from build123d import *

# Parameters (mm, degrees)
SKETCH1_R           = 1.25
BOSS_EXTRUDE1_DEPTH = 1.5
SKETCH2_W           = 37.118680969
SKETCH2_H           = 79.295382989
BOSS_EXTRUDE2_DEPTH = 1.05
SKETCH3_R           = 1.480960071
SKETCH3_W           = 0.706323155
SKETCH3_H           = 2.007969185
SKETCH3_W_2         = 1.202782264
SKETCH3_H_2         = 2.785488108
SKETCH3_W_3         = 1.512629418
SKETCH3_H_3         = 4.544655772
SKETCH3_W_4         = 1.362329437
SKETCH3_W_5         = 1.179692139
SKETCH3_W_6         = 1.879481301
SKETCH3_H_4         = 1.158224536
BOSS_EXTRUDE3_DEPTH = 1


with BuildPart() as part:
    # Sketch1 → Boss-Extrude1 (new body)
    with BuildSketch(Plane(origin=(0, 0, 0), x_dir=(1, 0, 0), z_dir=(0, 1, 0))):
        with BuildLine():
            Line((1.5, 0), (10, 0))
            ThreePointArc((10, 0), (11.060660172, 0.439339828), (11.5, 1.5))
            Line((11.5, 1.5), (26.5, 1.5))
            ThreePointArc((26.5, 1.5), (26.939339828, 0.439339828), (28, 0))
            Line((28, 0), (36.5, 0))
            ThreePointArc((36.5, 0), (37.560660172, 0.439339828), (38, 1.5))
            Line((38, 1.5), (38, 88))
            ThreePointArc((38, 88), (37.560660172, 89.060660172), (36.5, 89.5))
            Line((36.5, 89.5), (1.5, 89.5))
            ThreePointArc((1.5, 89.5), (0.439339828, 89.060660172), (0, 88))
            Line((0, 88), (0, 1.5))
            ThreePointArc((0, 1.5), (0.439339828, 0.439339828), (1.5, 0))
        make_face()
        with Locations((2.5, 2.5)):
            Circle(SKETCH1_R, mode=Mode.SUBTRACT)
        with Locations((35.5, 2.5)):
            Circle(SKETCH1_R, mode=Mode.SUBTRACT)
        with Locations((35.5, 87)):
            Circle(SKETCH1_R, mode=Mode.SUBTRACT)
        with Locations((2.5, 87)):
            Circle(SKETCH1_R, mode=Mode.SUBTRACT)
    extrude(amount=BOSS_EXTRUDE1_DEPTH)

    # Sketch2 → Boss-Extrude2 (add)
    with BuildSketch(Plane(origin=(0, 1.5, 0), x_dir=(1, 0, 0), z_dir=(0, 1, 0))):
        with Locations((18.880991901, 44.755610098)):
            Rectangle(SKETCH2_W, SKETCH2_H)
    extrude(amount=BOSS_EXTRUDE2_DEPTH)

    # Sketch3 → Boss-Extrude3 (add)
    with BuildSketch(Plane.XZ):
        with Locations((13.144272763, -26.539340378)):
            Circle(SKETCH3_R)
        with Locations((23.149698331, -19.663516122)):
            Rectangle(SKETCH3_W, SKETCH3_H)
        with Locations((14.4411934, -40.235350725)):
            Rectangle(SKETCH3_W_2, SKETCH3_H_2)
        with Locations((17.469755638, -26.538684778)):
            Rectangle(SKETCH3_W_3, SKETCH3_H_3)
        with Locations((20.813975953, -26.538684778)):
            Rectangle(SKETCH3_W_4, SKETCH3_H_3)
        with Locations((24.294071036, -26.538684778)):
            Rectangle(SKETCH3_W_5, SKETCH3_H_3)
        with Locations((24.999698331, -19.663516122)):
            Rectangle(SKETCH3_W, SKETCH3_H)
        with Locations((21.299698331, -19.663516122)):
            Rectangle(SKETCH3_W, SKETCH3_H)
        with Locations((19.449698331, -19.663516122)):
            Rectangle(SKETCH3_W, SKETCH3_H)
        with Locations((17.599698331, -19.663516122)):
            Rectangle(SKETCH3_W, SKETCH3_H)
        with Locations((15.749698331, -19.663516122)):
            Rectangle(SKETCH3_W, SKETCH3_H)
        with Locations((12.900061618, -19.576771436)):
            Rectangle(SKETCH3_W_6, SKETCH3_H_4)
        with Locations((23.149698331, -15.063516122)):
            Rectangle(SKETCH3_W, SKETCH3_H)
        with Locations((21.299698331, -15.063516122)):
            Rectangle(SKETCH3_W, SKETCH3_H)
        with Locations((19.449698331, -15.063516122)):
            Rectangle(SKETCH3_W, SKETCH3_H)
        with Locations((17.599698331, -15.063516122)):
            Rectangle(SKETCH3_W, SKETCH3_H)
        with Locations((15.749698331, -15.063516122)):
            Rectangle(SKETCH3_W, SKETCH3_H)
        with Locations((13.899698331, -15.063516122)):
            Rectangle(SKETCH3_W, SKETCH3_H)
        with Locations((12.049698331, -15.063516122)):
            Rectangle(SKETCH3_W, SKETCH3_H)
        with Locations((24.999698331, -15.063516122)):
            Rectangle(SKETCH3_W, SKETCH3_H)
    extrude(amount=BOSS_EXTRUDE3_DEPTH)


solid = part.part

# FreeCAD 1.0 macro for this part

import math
import FreeCAD as App
import Part
import Sketcher

V = App.Vector


def add_polygon(sketch, points):
    """Adds a closed chain of lines whose ends are joined by coincident constraints."""
    first, n = sketch.GeometryCount, len(points)
    for a, b in zip(points, points[1:] + points[:1]):
        sketch.addGeometry(Part.LineSegment(App.Vector(*a, 0), App.Vector(*b, 0)), False)
    for i in range(n):
        sketch.addConstraint(Sketcher.Constraint("Coincident", first + i, 2, first + (i + 1) % n, 1))

doc = App.newDocument("Part")
body = doc.addObject("PartDesign::Body", "Body")

sketch1 = body.newObject("Sketcher::SketchObject", "Sketch")
sketch1.AttachmentSupport = (doc.getObject("XZ_Plane"), [""])
sketch1.MapMode = "FlatFace"
sketch1.addGeometry([
    Part.LineSegment(V(1.5, 0, 0), V(10, 0, 0)),
    Part.ArcOfCircle(Part.Circle(V(10, -1.5, 0), V(0, 0, 1), 1.5), math.radians(0), math.radians(90)),
    Part.LineSegment(V(11.5, -1.5, 0), V(26.5, -1.5, 0)),
    Part.ArcOfCircle(Part.Circle(V(28, -1.5, 0), V(0, 0, 1), 1.5), math.radians(90), math.radians(180)),
    Part.LineSegment(V(28, 0, 0), V(36.5, 0, 0)),
    Part.ArcOfCircle(Part.Circle(V(36.5, -1.5, 0), V(0, 0, 1), 1.5), math.radians(0), math.radians(90)),
    Part.LineSegment(V(38, -1.5, 0), V(38, -88, 0)),
    Part.ArcOfCircle(Part.Circle(V(36.5, -88, 0), V(0, 0, 1), 1.5), math.radians(-90), math.radians(0)),
    Part.LineSegment(V(36.5, -89.5, 0), V(1.5, -89.5, 0)),
    Part.ArcOfCircle(Part.Circle(V(1.5, -88, 0), V(0, 0, 1), 1.5), math.radians(180), math.radians(270)),
    Part.LineSegment(V(0, -88, 0), V(0, -1.5, 0)),
    Part.ArcOfCircle(Part.Circle(V(1.5, -1.5, 0), V(0, 0, 1), 1.5), math.radians(90), math.radians(180)),
    Part.Circle(V(2.5, -2.5, 0), V(0, 0, 1), 1.25),
    Part.Circle(V(35.5, -2.5, 0), V(0, 0, 1), 1.25),
    Part.Circle(V(2.5, -87, 0), V(0, 0, 1), 1.25),
    Part.Circle(V(35.5, -87, 0), V(0, 0, 1), 1.25),
], False)
sketch1.addConstraint([
    Sketcher.Constraint("Tangent", 0, 2, 1, 2),
    Sketcher.Constraint("Coincident", 1, 1, 2, 1),
    Sketcher.Constraint("Coincident", 2, 2, 3, 2),
    Sketcher.Constraint("Tangent", 3, 1, 4, 1),
    Sketcher.Constraint("Tangent", 4, 2, 5, 2),
    Sketcher.Constraint("Tangent", 5, 1, 6, 1),
    Sketcher.Constraint("Tangent", 6, 2, 7, 2),
    Sketcher.Constraint("Tangent", 7, 1, 8, 1),
    Sketcher.Constraint("Tangent", 8, 2, 9, 2),
    Sketcher.Constraint("Tangent", 9, 1, 10, 1),
    Sketcher.Constraint("Tangent", 10, 2, 11, 2),
    Sketcher.Constraint("Tangent", 11, 1, 0, 1),
    Sketcher.Constraint("Horizontal", 0),
    Sketcher.Constraint("Horizontal", 2),
    Sketcher.Constraint("Horizontal", 4),
    Sketcher.Constraint("Vertical", 6),
    Sketcher.Constraint("Horizontal", 8),
    Sketcher.Constraint("Vertical", 10),
    Sketcher.Constraint("Equal", 1, 3),
    Sketcher.Constraint("Equal", 3, 5),
    Sketcher.Constraint("Equal", 5, 7),
    Sketcher.Constraint("Equal", 7, 9),
    Sketcher.Constraint("Equal", 9, 11),
    Sketcher.Constraint("Equal", 12, 13),
    Sketcher.Constraint("Equal", 13, 14),
    Sketcher.Constraint("Equal", 14, 15),
    Sketcher.Constraint("PointOnObject", 0, 2, -1),
    Sketcher.Constraint("PointOnObject", 3, 1, -1),
    Sketcher.Constraint("PointOnObject", 9, 1, -2),
    Sketcher.Constraint("Horizontal", 12, 3, 13, 3),
    Sketcher.Constraint("Horizontal", 14, 3, 15, 3),
    Sketcher.Constraint("Horizontal", 11, 3, 1, 1),
    Sketcher.Constraint("Vertical", 12, 3, 14, 3),
    Sketcher.Constraint("Vertical", 13, 3, 15, 3),
    Sketcher.Constraint("Equal", 0, 4),
    Sketcher.Constraint("Diameter", 12, 2.5),
    Sketcher.Constraint("Radius", 1, 1.5),
    Sketcher.Constraint("DistanceX", 2, 1, 2, 2, 15.0),
    Sketcher.Constraint("DistanceX", 8, 2, 8, 1, 35.0),
    Sketcher.Constraint("DistanceY", 6, 2, 6, 1, 86.5),
    Sketcher.Constraint("DistanceY", 14, 3, -1, 1, 87.0),
    Sketcher.Constraint("DistanceX", 11, 3, 12, 3, 1.0),
    Sketcher.Constraint("DistanceY", 12, 3, 11, 3, 1.0),
    Sketcher.Constraint("DistanceX", 13, 3, 5, 3, 1.0),
])
pad1 = body.newObject("PartDesign::Pad", "Pad")
pad1.Profile = sketch1
pad1.Length = 1.5
pad1.Reversed = True

sketch2 = body.newObject("Sketcher::SketchObject", "Sketch001")
sketch2.AttachmentSupport = (doc.getObject("XZ_Plane"), [""])
sketch2.MapMode = "FlatFace"
sketch2.AttachmentOffset = App.Placement(V(0, 0, -1.5), App.Rotation())
add_polygon(sketch2, [(0.321651, -84.403302), (0.321651, -5.107919), (37.440332, -5.107919), (37.440332, -84.403302)])
sketch2.addConstraint([
    Sketcher.Constraint("Vertical", 0),
    Sketcher.Constraint("Horizontal", 1),
    Sketcher.Constraint("Vertical", 2),
    Sketcher.Constraint("Horizontal", 3),
    Sketcher.Constraint("DistanceX", 1, 1, 1, 2, 37.118681),
    Sketcher.Constraint("DistanceY", 2, 2, -1, 1, 84.403302),
    Sketcher.Constraint("DistanceY", 0, 1, 0, 2, 79.295383),
    Sketcher.Constraint("DistanceX", -1, 1, 0, 2, 0.321651),
])
pad2 = body.newObject("PartDesign::Pad", "Pad001")
pad2.Profile = sketch2
pad2.Length = 1.05
pad2.Reversed = True

sketch3 = body.newObject("Sketcher::SketchObject", "Sketch002")
sketch3.AttachmentSupport = (doc.getObject("XZ_Plane"), [""])
sketch3.MapMode = "FlatFace"
sketch3.addGeometry(Part.Circle(V(13.144273, -26.53934, 0), V(0, 0, 1), 1.48096), False)
add_polygon(sketch3, [(22.796537, -18.659532), (22.796537, -20.667501), (23.50286, -20.667501), (23.50286, -18.659532)])
add_polygon(sketch3, [(13.839802, -38.842607), (13.839802, -41.628095), (15.042585, -41.628095), (15.042585, -38.842607)])
add_polygon(sketch3, [(16.713441, -24.266357), (16.713441, -28.811013), (18.22607, -28.811013), (18.22607, -24.266357)])
add_polygon(sketch3, [(20.132811, -24.266357), (20.132811, -28.811013), (21.495141, -28.811013), (21.495141, -24.266357)])
add_polygon(sketch3, [(23.704225, -24.266357), (23.704225, -28.811013), (24.883917, -28.811013), (24.883917, -24.266357)])
add_polygon(sketch3, [(24.646537, -18.659532), (24.646537, -20.667501), (25.35286, -20.667501), (25.35286, -18.659532)])
add_polygon(sketch3, [(20.946537, -18.659532), (20.946537, -20.667501), (21.65286, -20.667501), (21.65286, -18.659532)])
add_polygon(sketch3, [(19.096537, -18.659532), (19.096537, -20.667501), (19.80286, -20.667501), (19.80286, -18.659532)])
add_polygon(sketch3, [(17.246537, -18.659532), (17.246537, -20.667501), (17.95286, -20.667501), (17.95286, -18.659532)])
add_polygon(sketch3, [(15.396537, -18.659532), (15.396537, -20.667501), (16.10286, -20.667501), (16.10286, -18.659532)])
add_polygon(sketch3, [(11.960321, -18.997659), (11.960321, -20.155884), (13.839802, -20.155884), (13.839802, -18.997659)])
add_polygon(sketch3, [(22.796537, -14.059532), (22.796537, -16.067501), (23.50286, -16.067501), (23.50286, -14.059532)])
add_polygon(sketch3, [(20.946537, -14.059532), (20.946537, -16.067501), (21.65286, -16.067501), (21.65286, -14.059532)])
add_polygon(sketch3, [(19.096537, -14.059532), (19.096537, -16.067501), (19.80286, -16.067501), (19.80286, -14.059532)])
add_polygon(sketch3, [(17.246537, -14.059532), (17.246537, -16.067501), (17.95286, -16.067501), (17.95286, -14.059532)])
add_polygon(sketch3, [(15.396537, -14.059532), (15.396537, -16.067501), (16.10286, -16.067501), (16.10286, -14.059532)])
add_polygon(sketch3, [(13.546537, -14.059532), (13.546537, -16.067501), (14.25286, -16.067501), (14.25286, -14.059532)])
add_polygon(sketch3, [(11.696537, -14.059532), (11.696537, -16.067501), (12.40286, -16.067501), (12.40286, -14.059532)])
add_polygon(sketch3, [(24.646537, -14.059532), (24.646537, -16.067501), (25.35286, -16.067501), (25.35286, -14.059532)])
sketch3.addConstraint([
    Sketcher.Constraint("Vertical", 1),
    Sketcher.Constraint("Horizontal", 2),
    Sketcher.Constraint("Vertical", 3),
    Sketcher.Constraint("Horizontal", 4),
    Sketcher.Constraint("Vertical", 5),
    Sketcher.Constraint("Horizontal", 6),
    Sketcher.Constraint("Vertical", 7),
    Sketcher.Constraint("Horizontal", 8),
    Sketcher.Constraint("Vertical", 9),
    Sketcher.Constraint("Horizontal", 10),
    Sketcher.Constraint("Vertical", 11),
    Sketcher.Constraint("Horizontal", 12),
    Sketcher.Constraint("Vertical", 13),
    Sketcher.Constraint("Horizontal", 14),
    Sketcher.Constraint("Vertical", 15),
    Sketcher.Constraint("Horizontal", 16),
    Sketcher.Constraint("Vertical", 17),
    Sketcher.Constraint("Horizontal", 18),
    Sketcher.Constraint("Vertical", 19),
    Sketcher.Constraint("Horizontal", 20),
    Sketcher.Constraint("Vertical", 21),
    Sketcher.Constraint("Horizontal", 22),
    Sketcher.Constraint("Vertical", 23),
    Sketcher.Constraint("Horizontal", 24),
    Sketcher.Constraint("Vertical", 25),
    Sketcher.Constraint("Horizontal", 26),
    Sketcher.Constraint("Vertical", 27),
    Sketcher.Constraint("Horizontal", 28),
    Sketcher.Constraint("Vertical", 29),
    Sketcher.Constraint("Horizontal", 30),
    Sketcher.Constraint("Vertical", 31),
    Sketcher.Constraint("Horizontal", 32),
    Sketcher.Constraint("Vertical", 33),
    Sketcher.Constraint("Horizontal", 34),
    Sketcher.Constraint("Vertical", 35),
    Sketcher.Constraint("Horizontal", 36),
    Sketcher.Constraint("Vertical", 37),
    Sketcher.Constraint("Horizontal", 38),
    Sketcher.Constraint("Vertical", 39),
    Sketcher.Constraint("Horizontal", 40),
    Sketcher.Constraint("Vertical", 41),
    Sketcher.Constraint("Horizontal", 42),
    Sketcher.Constraint("Vertical", 43),
    Sketcher.Constraint("Horizontal", 44),
    Sketcher.Constraint("Vertical", 45),
    Sketcher.Constraint("Horizontal", 46),
    Sketcher.Constraint("Vertical", 47),
    Sketcher.Constraint("Horizontal", 48),
    Sketcher.Constraint("Vertical", 49),
    Sketcher.Constraint("Horizontal", 50),
    Sketcher.Constraint("Vertical", 51),
    Sketcher.Constraint("Horizontal", 52),
    Sketcher.Constraint("Vertical", 53),
    Sketcher.Constraint("Horizontal", 54),
    Sketcher.Constraint("Vertical", 55),
    Sketcher.Constraint("Horizontal", 56),
    Sketcher.Constraint("Vertical", 57),
    Sketcher.Constraint("Horizontal", 58),
    Sketcher.Constraint("Vertical", 59),
    Sketcher.Constraint("Horizontal", 60),
    Sketcher.Constraint("Vertical", 61),
    Sketcher.Constraint("Horizontal", 62),
    Sketcher.Constraint("Vertical", 63),
    Sketcher.Constraint("Horizontal", 64),
    Sketcher.Constraint("Vertical", 65),
    Sketcher.Constraint("Horizontal", 66),
    Sketcher.Constraint("Vertical", 67),
    Sketcher.Constraint("Horizontal", 68),
    Sketcher.Constraint("Vertical", 69),
    Sketcher.Constraint("Horizontal", 70),
    Sketcher.Constraint("Vertical", 71),
    Sketcher.Constraint("Horizontal", 72),
    Sketcher.Constraint("Vertical", 73),
    Sketcher.Constraint("Horizontal", 74),
    Sketcher.Constraint("Vertical", 75),
    Sketcher.Constraint("Horizontal", 76),
    Sketcher.Constraint("Horizontal", 10, 2, 13, 2),
    Sketcher.Constraint("Horizontal", 12, 2, 15, 2),
    Sketcher.Constraint("Horizontal", 14, 2, 17, 2),
    Sketcher.Constraint("Horizontal", 16, 2, 19, 2),
    Sketcher.Constraint("Horizontal", 2, 2, 21, 2),
    Sketcher.Constraint("Horizontal", 4, 2, 23, 2),
    Sketcher.Constraint("Horizontal", 22, 2, 25, 2),
    Sketcher.Constraint("Horizontal", 24, 2, 27, 2),
    Sketcher.Constraint("Horizontal", 26, 2, 29, 2),
    Sketcher.Constraint("Horizontal", 28, 2, 31, 2),
    Sketcher.Constraint("Horizontal", 30, 2, 33, 2),
    Sketcher.Constraint("Horizontal", 32, 2, 35, 2),
    Sketcher.Constraint("Horizontal", 34, 2, 37, 2),
    Sketcher.Constraint("Horizontal", 36, 2, 39, 2),
    Sketcher.Constraint("Horizontal", 46, 2, 49, 2),
    Sketcher.Constraint("Horizontal", 48, 2, 51, 2),
    Sketcher.Constraint("Horizontal", 50, 2, 53, 2),
    Sketcher.Constraint("Horizontal", 52, 2, 55, 2),
    Sketcher.Constraint("Horizontal", 54, 2, 57, 2),
    Sketcher.Constraint("Horizontal", 56, 2, 59, 2),
    Sketcher.Constraint("Horizontal", 58, 2, 61, 2),
    Sketcher.Constraint("Horizontal", 60, 2, 63, 2),
    Sketcher.Constraint("Horizontal", 62, 2, 65, 2),
    Sketcher.Constraint("Horizontal", 64, 2, 67, 2),
    Sketcher.Constraint("Horizontal", 66, 2, 69, 2),
    Sketcher.Constraint("Horizontal", 68, 2, 71, 2),
    Sketcher.Constraint("Horizontal", 70, 2, 73, 2),
    Sketcher.Constraint("Horizontal", 72, 2, 75, 2),
    Sketcher.Constraint("Vertical", 8, 2, 42, 2),
    Sketcher.Constraint("Vertical", 4, 2, 45, 2),
    Sketcher.Constraint("Vertical", 3, 2, 46, 2),
    Sketcher.Constraint("Vertical", 28, 2, 49, 2),
    Sketcher.Constraint("Vertical", 27, 2, 50, 2),
    Sketcher.Constraint("Vertical", 32, 2, 53, 2),
    Sketcher.Constraint("Vertical", 31, 2, 54, 2),
    Sketcher.Constraint("Vertical", 36, 2, 57, 2),
    Sketcher.Constraint("Vertical", 35, 2, 58, 2),
    Sketcher.Constraint("Vertical", 40, 2, 61, 2),
    Sketcher.Constraint("Vertical", 39, 2, 62, 2),
    Sketcher.Constraint("Vertical", 24, 2, 73, 2),
    Sketcher.Constraint("Vertical", 23, 2, 74, 2),
    Sketcher.Constraint("Equal", 4, 22),
    Sketcher.Constraint("Equal", 24, 26),
    Sketcher.Constraint("Equal", 28, 30),
    Sketcher.Constraint("Equal", 32, 34),
    Sketcher.Constraint("Equal", 36, 38),
    Sketcher.Constraint("Equal", 64, 66),
    Sketcher.Constraint("Equal", 68, 70),
    Sketcher.Constraint("Equal", 39, 45),
    Sketcher.Constraint("Diameter", 0, 2.96192),
    Sketcher.Constraint("DistanceX", 10, 1, 10, 2, 1.512629),
    Sketcher.Constraint("DistanceX", 14, 1, 14, 2, 1.362329),
    Sketcher.Constraint("DistanceX", 42, 1, 42, 2, 1.879481),
    Sketcher.Constraint("DistanceY", 1, 2, 1, 1, 2.007969),
    Sketcher.Constraint("DistanceY", 5, 2, 5, 1, 2.785488),
    Sketcher.Constraint("DistanceY", 1, 2, -1, 1, 20.667501),
    Sketcher.Constraint("DistanceY", 45, 2, -1, 1, 16.067501),
    Sketcher.Constraint("DistanceX", 2, 1, 2, 2, 0.706323),
    Sketcher.Constraint("DistanceX", 6, 1, 6, 2, 1.202782),
    Sketcher.Constraint("DistanceX", 18, 1, 18, 2, 1.179692),
    Sketcher.Constraint("DistanceY", 9, 2, 9, 1, 4.544656),
    Sketcher.Constraint("DistanceY", 41, 2, 41, 1, 1.158225),
    Sketcher.Constraint("DistanceY", 0, 3, -1, 1, 26.53934),
    Sketcher.Constraint("DistanceX", -1, 1, 2, 2, 23.50286),
    Sketcher.Constraint("DistanceX", -1, 1, 9, 2, 16.713441),
    Sketcher.Constraint("DistanceX", -1, 1, 13, 2, 20.132811),
    Sketcher.Constraint("DistanceX", -1, 1, 22, 2, 25.35286),
    Sketcher.Constraint("DistanceX", -1, 1, 26, 2, 21.65286),
    Sketcher.Constraint("DistanceX", -1, 1, 30, 2, 19.80286),
    Sketcher.Constraint("DistanceX", -1, 1, 34, 2, 17.95286),
    Sketcher.Constraint("DistanceX", -1, 1, 38, 2, 16.10286),
    Sketcher.Constraint("DistanceX", -1, 1, 41, 2, 11.960321),
    Sketcher.Constraint("DistanceY", 43, 2, -1, 1, 18.997659),
    Sketcher.Constraint("DistanceX", -1, 1, 66, 2, 14.25286),
    Sketcher.Constraint("DistanceX", -1, 1, 70, 2, 12.40286),
    Sketcher.Constraint("DistanceX", -1, 1, 0, 3, 13.144273),
    Sketcher.Constraint("DistanceY", 5, 2, -1, 1, 41.628095),
    Sketcher.Constraint("DistanceY", 9, 2, -1, 1, 28.811013),
    Sketcher.Constraint("DistanceX", -1, 1, 17, 2, 23.704225),
])
pad3 = body.newObject("PartDesign::Pad", "Pad002")
pad3.Profile = sketch3
pad3.Length = 1

doc.recompute()
